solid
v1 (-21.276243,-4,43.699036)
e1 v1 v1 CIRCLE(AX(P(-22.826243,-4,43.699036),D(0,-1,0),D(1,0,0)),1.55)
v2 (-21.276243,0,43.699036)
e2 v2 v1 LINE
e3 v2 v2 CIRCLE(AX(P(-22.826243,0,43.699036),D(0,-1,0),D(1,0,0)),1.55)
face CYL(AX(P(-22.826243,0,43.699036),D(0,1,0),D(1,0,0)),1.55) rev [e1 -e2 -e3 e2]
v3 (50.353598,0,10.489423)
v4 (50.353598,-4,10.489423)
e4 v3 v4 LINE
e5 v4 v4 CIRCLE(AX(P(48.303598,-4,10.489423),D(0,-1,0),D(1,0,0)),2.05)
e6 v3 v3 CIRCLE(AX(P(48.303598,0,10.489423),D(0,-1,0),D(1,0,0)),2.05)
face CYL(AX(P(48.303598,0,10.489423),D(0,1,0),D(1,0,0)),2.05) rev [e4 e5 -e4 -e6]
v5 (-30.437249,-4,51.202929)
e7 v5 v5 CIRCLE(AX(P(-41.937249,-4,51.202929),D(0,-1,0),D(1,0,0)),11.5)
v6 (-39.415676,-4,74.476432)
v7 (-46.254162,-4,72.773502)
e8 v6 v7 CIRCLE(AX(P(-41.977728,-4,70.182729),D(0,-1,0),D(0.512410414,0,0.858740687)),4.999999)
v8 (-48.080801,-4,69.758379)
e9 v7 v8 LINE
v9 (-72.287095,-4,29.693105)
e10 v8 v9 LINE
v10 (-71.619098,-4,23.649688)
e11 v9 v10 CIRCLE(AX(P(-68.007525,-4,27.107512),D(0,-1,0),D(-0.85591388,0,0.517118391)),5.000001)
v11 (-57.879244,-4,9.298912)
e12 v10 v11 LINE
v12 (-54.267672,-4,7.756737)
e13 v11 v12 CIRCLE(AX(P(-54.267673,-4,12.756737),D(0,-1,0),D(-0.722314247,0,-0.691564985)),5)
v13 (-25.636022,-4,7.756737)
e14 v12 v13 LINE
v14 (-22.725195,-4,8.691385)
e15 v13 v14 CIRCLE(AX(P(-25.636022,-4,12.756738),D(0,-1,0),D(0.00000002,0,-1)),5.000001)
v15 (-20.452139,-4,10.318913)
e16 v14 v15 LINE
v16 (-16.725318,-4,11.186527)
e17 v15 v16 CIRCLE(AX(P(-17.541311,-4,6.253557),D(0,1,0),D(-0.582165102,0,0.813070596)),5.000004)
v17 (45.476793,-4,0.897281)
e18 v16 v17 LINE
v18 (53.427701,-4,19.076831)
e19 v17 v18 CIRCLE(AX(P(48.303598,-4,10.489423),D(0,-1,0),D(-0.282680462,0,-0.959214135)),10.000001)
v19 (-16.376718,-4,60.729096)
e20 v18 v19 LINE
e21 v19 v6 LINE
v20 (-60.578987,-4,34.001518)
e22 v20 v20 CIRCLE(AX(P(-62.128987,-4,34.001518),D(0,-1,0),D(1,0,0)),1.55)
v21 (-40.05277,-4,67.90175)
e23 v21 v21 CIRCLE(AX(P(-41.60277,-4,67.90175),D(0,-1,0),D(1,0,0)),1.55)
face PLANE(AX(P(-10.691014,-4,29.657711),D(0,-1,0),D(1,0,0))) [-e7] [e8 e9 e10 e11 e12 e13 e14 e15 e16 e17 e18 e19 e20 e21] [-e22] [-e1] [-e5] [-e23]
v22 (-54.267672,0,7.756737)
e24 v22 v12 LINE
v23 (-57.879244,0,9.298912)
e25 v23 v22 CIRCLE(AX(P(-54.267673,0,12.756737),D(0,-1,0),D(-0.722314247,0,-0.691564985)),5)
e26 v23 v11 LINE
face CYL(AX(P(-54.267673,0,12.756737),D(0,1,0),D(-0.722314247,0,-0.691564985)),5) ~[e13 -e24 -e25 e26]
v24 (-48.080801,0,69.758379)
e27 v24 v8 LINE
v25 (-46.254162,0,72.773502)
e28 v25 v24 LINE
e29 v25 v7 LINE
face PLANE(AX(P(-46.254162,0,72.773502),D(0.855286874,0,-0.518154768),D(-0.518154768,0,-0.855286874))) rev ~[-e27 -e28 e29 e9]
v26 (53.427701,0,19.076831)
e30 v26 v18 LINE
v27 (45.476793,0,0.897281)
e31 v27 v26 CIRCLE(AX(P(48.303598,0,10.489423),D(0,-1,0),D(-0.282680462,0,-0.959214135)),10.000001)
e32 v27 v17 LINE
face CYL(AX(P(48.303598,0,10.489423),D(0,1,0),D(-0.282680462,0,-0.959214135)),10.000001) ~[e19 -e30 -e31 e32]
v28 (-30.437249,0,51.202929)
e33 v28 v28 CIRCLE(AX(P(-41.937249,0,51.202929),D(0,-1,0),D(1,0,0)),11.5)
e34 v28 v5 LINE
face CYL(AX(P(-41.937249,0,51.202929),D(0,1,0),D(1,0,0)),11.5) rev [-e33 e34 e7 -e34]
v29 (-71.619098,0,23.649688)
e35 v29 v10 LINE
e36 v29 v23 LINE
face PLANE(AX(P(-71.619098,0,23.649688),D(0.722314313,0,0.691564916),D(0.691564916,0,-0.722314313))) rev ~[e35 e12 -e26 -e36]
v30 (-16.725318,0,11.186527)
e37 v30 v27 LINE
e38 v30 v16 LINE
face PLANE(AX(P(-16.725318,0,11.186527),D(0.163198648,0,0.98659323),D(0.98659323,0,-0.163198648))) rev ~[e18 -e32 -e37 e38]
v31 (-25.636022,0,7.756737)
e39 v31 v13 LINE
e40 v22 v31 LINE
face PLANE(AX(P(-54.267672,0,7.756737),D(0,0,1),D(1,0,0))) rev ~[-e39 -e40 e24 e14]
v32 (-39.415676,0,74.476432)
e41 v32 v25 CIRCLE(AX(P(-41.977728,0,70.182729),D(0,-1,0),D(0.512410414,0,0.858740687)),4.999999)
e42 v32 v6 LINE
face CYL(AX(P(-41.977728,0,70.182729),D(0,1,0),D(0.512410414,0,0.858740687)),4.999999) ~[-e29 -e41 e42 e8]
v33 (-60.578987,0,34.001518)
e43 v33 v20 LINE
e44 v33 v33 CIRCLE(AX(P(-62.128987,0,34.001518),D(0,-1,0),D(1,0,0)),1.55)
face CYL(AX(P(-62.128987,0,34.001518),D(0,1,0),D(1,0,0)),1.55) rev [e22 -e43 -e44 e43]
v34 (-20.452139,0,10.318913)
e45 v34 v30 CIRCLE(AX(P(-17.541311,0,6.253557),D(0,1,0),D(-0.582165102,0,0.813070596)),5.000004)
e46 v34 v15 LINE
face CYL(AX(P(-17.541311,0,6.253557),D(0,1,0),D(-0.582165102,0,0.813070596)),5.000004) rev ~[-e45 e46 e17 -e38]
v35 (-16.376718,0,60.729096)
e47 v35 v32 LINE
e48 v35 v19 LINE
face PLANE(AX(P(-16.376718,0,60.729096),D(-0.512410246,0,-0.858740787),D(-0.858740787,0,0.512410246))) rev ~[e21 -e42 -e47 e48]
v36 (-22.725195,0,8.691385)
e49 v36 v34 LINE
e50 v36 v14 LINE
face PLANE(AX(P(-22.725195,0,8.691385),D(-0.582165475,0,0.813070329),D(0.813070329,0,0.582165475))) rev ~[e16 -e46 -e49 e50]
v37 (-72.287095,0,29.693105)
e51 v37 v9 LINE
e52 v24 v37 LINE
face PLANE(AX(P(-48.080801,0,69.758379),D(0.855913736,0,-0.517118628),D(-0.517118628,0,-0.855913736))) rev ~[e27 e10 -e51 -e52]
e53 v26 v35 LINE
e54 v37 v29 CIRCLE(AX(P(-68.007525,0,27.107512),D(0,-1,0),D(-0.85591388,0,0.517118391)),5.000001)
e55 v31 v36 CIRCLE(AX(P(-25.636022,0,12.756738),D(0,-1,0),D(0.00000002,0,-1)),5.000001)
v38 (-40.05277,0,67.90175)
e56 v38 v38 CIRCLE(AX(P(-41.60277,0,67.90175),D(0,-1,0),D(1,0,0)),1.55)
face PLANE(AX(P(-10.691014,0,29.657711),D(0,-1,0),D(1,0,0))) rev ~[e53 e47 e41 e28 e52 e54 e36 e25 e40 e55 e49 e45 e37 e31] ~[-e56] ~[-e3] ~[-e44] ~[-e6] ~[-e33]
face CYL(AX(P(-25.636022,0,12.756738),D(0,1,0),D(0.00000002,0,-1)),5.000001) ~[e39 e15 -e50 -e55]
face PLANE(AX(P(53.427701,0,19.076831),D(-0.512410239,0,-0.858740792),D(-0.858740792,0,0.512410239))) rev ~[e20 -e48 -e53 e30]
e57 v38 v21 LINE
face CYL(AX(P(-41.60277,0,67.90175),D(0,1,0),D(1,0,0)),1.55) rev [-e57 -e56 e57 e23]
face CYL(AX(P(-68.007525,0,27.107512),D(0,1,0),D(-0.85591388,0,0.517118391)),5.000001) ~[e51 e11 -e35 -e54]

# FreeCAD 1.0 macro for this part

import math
import FreeCAD as App
import Part
import Sketcher

V = App.Vector
Q = App.Units.Quantity

doc = App.newDocument("Part")
body = doc.addObject("PartDesign::Body", "Body")

# Sketch on XZ plane
sketch1 = body.newObject("Sketcher::SketchObject", "Sketch")
sketch1.AttachmentSupport = (doc.getObject("XZ_Plane"), [""])
sketch1.MapMode = "FlatFace"
sketch1.addGeometry([
    Part.LineSegment(V(-16.7, 11.2, 0), V(45.5, 0.9, 0)),  # 0
    Part.ArcOfCircle(Part.Circle(V(48.3, 10.5, 0), V(0, 0, 1), 10), math.radians(-106), math.radians(59)),  # 1
    Part.LineSegment(V(53.4, 19.1, 0), V(-16.4, 60.7, 0)),  # 2
    Part.LineSegment(V(-16.4, 60.7, 0), V(-39.4, 74.5, 0)),  # 3
    Part.ArcOfCircle(Part.Circle(V(-42, 70.2, 0), V(0, 0, 1), 5), math.radians(59), math.radians(149)),  # 4
    Part.LineSegment(V(-46.3, 72.8, 0), V(-48.1, 69.8, 0)),  # 5
    Part.LineSegment(V(-48.1, 69.8, 0), V(-72.3, 29.7, 0)),  # 6
    Part.ArcOfCircle(Part.Circle(V(-68, 27.1, 0), V(0, 0, 1), 5), math.radians(149), math.radians(224)),  # 7
    Part.LineSegment(V(-71.6, 23.6, 0), V(-57.9, 9.3, 0)),  # 8
    Part.ArcOfCircle(Part.Circle(V(-54.3, 12.8, 0), V(0, 0, 1), 5), math.radians(-136), math.radians(-90)),  # 9
    Part.LineSegment(V(-54.3, 7.8, 0), V(-25.6, 7.8, 0)),  # 10
    Part.ArcOfCircle(Part.Circle(V(-25.6, 12.8, 0), V(0, 0, 1), 5), math.radians(-90), math.radians(-54)),  # 11
    Part.LineSegment(V(-22.7, 8.7, 0), V(-20.5, 10.3, 0)),  # 12
    Part.ArcOfCircle(Part.Circle(V(-17.5, 6.3, 0), V(0, 0, 1), 5), math.radians(81), math.radians(126)),  # 13
    Part.Circle(V(-62.1, 34, 0), V(0, 0, 1), 1.6),  # 14
    Part.Circle(V(48.3, 10.5, 0), V(0, 0, 1), 2),  # 15
    Part.Circle(V(-41.9, 51.2, 0), V(0, 0, 1), 11.5),  # 16
    Part.Circle(V(-22.8, 43.7, 0), V(0, 0, 1), 1.6),  # 17
    Part.Circle(V(-41.6, 67.9, 0), V(0, 0, 1), 1.6),  # 18
], False)
sketch1.addConstraint([
    Sketcher.Constraint("Coincident", 0, 2, 1, 1),
    Sketcher.Constraint("Tangent", 1, 2, 2, 1),
    Sketcher.Constraint("Coincident", 2, 2, 3, 1),
    Sketcher.Constraint("Tangent", 3, 2, 4, 1),
    Sketcher.Constraint("Tangent", 4, 2, 5, 1),
    Sketcher.Constraint("Coincident", 5, 2, 6, 1),
    Sketcher.Constraint("Tangent", 6, 2, 7, 1),
    Sketcher.Constraint("Tangent", 7, 2, 8, 1),
    Sketcher.Constraint("Tangent", 8, 2, 9, 1),
    Sketcher.Constraint("Tangent", 9, 2, 10, 1),
    Sketcher.Constraint("Tangent", 10, 2, 11, 1),
    Sketcher.Constraint("Tangent", 11, 2, 12, 1),
    Sketcher.Constraint("Tangent", 12, 2, 13, 2),
    Sketcher.Constraint("Tangent", 13, 1, 0, 1),
    Sketcher.Constraint("Horizontal", 10),
    Sketcher.Constraint("Coincident", 15, 3, 1, 3),
    Sketcher.Constraint("Equal", 4, 7),
    Sketcher.Constraint("Equal", 7, 9),
    Sketcher.Constraint("Equal", 9, 11),
    Sketcher.Constraint("Equal", 14, 17),
    Sketcher.Constraint("Equal", 17, 18),
    Sketcher.Constraint("Parallel", 2, 3),
    Sketcher.Constraint("Diameter", 16, Q("23 mm")),
    Sketcher.Constraint("Radius", 1, Q("10.000001 mm")),
    Sketcher.Constraint("Radius", 4, Q("4.999999 mm")),
    Sketcher.Constraint("Diameter", 14, Q("3.1 mm")),
    Sketcher.Constraint("Diameter", 15, Q("4.1 mm")),
    Sketcher.Constraint("Radius", 13, Q("5.000004 mm")),
    Sketcher.Constraint("DistanceX", 10, 1, 10, 2, Q("28.63165 mm")),
    Sketcher.Constraint("DistanceX", -1, 1, 1, 2, Q("53.427701 mm")),
    Sketcher.Constraint("DistanceX", 5, 2, -1, 1, Q("48.080801 mm")),
    Sketcher.Constraint("DistanceX", 7, 2, -1, 1, Q("71.619098 mm")),
    Sketcher.Constraint("DistanceY", 16, 3, 4, 3, Q("18.9798 mm")),
    Sketcher.Constraint("DistanceY", 11, 3, 17, 3, Q("30.942298 mm")),
    Sketcher.Constraint("DistanceY", 8, 2, 7, 3, Q("17.8086 mm")),
    Sketcher.Constraint("Distance", 2, Q("81.286949 mm")),
    Sketcher.Constraint("Distance", 3, Q("26.828769 mm")),
    Sketcher.Constraint("Distance", 8, Q("19.867772 mm")),
    Sketcher.Constraint("DistanceY", -1, 1, 4, 3, Q("70.182729 mm")),
    Sketcher.Constraint("DistanceX", 13, 3, -1, 1, Q("17.541311 mm")),
    Sketcher.Constraint("DistanceX", 16, 3, -1, 1, Q("41.937249 mm")),
    Sketcher.Constraint("DistanceX", 18, 3, -1, 1, Q("41.60277 mm")),
    Sketcher.Constraint("DistanceY", -1, 1, 18, 3, Q("67.90175 mm")),
    Sketcher.Constraint("DistanceY", -1, 1, 0, 2, Q("0.897281 mm")),
    Sketcher.Constraint("DistanceY", -1, 1, 1, 2, Q("19.076831 mm")),
    Sketcher.Constraint("DistanceY", -1, 1, 5, 2, Q("69.758379 mm")),
    Sketcher.Constraint("DistanceX", 12, 2, -1, 1, Q("20.452139 mm")),
    Sketcher.Constraint("DistanceY", 1, 3, 7, 3, Q("16.618089 mm")),
    Sketcher.Constraint("DistanceY", 9, 3, 14, 3, Q("21.244781 mm")),
    Sketcher.Constraint("DistanceX", 14, 3, 4, 3, Q("20.151259 mm")),
    Sketcher.Constraint("DistanceX", 11, 3, 17, 3, Q("2.809779 mm")),
])
pad1 = body.newObject("PartDesign::Pad", "Pad")
pad1.Profile = sketch1
pad1.Length = 4

doc.recompute()
